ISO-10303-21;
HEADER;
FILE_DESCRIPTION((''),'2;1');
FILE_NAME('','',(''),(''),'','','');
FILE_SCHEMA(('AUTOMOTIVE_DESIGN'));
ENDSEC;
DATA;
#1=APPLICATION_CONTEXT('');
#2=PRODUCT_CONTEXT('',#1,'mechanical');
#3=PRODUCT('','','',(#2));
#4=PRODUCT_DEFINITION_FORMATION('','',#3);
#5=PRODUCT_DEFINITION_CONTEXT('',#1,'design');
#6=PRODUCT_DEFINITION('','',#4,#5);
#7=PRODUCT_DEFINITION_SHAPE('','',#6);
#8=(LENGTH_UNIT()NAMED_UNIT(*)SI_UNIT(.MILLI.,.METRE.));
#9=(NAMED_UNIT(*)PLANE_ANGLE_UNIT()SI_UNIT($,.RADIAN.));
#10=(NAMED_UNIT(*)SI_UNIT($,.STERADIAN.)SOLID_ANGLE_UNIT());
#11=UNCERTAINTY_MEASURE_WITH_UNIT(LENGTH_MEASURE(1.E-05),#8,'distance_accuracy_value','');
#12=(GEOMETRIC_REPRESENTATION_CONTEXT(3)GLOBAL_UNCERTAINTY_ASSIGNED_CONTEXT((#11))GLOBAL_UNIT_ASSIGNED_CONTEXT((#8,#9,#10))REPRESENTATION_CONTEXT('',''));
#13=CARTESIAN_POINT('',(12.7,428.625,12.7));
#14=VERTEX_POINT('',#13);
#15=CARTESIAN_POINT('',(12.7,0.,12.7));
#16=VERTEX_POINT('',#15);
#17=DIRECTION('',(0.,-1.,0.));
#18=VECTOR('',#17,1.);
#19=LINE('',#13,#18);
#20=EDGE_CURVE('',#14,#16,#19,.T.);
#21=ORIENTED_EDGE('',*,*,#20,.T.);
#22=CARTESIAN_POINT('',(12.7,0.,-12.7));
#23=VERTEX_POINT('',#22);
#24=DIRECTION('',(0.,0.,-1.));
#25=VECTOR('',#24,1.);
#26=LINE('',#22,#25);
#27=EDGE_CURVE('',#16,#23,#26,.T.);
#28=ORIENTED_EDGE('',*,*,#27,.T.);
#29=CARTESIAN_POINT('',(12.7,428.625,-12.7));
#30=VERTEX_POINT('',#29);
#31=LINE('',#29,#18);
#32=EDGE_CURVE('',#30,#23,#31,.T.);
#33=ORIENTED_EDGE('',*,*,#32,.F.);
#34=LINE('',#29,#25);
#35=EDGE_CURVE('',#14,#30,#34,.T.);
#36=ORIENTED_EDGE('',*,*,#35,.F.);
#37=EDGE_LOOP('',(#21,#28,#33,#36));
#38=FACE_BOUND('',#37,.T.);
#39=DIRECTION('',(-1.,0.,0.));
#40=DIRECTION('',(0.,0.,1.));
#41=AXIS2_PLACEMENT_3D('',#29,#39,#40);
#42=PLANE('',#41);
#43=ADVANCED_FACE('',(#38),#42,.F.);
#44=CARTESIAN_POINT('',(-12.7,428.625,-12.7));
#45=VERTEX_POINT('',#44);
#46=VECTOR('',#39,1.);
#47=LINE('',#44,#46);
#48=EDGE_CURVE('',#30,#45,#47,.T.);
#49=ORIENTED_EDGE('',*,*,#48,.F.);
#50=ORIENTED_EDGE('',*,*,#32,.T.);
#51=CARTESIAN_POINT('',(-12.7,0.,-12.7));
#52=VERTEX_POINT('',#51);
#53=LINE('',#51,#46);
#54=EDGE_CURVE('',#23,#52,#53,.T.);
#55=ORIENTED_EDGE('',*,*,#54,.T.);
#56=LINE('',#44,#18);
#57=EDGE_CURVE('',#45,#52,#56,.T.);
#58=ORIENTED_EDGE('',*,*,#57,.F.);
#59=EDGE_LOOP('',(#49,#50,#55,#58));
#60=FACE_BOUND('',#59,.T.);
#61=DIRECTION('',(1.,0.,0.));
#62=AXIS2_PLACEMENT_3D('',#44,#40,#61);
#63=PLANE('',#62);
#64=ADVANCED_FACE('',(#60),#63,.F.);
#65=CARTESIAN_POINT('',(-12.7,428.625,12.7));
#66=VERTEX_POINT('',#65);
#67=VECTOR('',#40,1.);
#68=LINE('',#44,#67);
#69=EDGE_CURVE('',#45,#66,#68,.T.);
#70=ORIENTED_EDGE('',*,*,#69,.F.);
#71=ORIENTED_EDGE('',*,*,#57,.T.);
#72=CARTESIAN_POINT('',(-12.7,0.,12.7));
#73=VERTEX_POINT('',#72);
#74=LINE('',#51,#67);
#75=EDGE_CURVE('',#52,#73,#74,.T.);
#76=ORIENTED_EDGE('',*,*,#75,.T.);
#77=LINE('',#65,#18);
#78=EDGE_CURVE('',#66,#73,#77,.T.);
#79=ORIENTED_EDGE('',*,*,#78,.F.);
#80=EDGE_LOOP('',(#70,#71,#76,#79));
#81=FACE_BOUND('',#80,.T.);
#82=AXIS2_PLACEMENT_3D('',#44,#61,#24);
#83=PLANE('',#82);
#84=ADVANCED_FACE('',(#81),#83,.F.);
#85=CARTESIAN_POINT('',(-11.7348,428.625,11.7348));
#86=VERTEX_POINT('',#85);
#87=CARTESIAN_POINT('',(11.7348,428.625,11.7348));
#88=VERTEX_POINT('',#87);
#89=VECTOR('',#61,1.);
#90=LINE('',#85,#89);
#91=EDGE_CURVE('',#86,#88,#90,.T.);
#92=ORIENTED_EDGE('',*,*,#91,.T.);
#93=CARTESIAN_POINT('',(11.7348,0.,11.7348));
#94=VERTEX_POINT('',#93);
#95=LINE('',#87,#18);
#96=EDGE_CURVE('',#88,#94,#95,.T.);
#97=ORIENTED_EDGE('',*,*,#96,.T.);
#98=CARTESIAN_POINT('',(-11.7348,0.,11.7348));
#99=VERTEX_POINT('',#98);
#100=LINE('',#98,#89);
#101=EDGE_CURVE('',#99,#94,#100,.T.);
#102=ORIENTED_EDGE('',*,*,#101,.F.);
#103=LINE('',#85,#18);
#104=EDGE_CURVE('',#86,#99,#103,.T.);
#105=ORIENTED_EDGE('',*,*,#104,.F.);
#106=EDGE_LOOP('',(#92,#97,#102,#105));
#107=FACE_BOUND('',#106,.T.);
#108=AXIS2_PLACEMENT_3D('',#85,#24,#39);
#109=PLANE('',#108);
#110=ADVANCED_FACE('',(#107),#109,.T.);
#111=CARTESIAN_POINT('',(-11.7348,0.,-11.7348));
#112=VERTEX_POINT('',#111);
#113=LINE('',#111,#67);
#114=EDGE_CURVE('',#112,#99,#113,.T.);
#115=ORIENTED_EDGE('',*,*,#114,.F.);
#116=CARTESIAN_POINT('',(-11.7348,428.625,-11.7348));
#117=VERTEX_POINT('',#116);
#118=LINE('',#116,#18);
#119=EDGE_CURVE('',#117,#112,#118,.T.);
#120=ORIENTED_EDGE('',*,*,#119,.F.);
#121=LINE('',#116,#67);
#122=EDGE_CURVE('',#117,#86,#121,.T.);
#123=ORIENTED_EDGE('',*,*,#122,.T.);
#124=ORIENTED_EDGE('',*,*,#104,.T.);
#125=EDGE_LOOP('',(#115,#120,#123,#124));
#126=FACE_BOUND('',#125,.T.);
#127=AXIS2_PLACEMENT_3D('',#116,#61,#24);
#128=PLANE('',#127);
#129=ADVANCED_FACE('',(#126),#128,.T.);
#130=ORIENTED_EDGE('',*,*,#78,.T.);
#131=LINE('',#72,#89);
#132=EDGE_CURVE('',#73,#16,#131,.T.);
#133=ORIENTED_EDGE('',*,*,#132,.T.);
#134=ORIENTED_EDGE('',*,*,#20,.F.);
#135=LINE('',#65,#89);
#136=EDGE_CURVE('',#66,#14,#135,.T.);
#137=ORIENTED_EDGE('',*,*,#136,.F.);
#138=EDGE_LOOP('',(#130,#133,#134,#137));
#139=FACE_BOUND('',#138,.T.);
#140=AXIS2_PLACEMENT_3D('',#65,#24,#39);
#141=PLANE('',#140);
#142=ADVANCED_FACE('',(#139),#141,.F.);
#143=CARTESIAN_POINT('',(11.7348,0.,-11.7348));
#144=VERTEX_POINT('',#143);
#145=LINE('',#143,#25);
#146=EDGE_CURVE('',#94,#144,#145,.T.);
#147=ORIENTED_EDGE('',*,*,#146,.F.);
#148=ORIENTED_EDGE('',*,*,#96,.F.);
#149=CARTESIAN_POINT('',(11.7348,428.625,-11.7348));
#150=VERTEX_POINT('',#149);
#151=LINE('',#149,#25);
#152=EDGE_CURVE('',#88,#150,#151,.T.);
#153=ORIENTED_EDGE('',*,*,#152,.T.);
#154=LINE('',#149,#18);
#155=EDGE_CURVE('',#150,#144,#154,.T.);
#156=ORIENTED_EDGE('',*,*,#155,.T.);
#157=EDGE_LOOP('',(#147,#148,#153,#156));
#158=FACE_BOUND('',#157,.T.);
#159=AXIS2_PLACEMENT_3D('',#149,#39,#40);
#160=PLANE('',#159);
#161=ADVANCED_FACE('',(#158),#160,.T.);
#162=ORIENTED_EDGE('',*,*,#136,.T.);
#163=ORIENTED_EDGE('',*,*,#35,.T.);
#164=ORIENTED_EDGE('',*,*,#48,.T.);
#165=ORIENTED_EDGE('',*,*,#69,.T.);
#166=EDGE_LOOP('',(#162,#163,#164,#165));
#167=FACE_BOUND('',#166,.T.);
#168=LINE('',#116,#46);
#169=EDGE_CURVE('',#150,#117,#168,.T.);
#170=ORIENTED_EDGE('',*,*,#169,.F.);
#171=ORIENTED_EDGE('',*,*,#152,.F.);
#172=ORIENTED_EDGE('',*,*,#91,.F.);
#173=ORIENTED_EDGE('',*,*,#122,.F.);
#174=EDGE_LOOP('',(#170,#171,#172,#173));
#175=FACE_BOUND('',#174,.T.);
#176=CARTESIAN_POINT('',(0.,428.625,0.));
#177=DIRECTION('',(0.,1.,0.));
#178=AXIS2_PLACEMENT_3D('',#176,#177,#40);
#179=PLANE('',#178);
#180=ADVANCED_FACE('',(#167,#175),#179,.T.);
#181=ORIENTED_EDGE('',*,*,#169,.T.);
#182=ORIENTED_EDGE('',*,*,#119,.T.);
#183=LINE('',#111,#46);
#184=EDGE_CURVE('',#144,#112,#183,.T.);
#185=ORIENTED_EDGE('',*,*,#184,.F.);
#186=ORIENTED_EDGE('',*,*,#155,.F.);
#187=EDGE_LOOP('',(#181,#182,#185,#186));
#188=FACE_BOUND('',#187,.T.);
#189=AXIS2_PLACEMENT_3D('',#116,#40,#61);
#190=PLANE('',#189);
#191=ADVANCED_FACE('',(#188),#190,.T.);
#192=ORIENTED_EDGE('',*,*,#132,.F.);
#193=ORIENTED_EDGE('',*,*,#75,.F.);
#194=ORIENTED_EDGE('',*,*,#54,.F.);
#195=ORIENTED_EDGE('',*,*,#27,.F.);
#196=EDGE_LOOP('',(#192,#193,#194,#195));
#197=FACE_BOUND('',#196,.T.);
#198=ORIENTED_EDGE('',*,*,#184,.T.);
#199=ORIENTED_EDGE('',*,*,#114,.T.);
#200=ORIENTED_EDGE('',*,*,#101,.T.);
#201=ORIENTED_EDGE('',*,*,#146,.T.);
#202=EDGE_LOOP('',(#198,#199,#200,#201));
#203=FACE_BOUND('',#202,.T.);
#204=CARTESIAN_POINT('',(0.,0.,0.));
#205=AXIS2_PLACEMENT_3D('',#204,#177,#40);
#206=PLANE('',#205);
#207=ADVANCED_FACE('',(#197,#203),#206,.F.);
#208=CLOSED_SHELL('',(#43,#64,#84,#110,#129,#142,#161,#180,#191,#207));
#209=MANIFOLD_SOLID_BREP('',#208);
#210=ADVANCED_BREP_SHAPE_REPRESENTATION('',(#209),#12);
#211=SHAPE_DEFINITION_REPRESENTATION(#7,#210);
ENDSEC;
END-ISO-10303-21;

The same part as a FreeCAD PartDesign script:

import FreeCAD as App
import Part
import Sketcher
Q = App.Units.Quantity


def add_polygon(sketch, points):
    """Adds a closed chain of lines whose ends are joined by coincident constraints."""
    first, n = sketch.GeometryCount, len(points)
    for a, b in zip(points, points[1:] + points[:1]):
        sketch.addGeometry(Part.LineSegment(App.Vector(*a, 0), App.Vector(*b, 0)), False)
    for i in range(n):
        sketch.addConstraint(Sketcher.Constraint("Coincident", first + i, 2, first + (i + 1) % n, 1))

doc = App.newDocument("Part")
body = doc.addObject("PartDesign::Body", "Body")

sketch1 = body.newObject("Sketcher::SketchObject", "Sketch")
sketch1.AttachmentSupport = (doc.getObject("XZ_Plane"), [""])
sketch1.MapMode = "FlatFace"
add_polygon(sketch1, [(-13, -13), (-13, 13), (13, 13), (13, -13)])
add_polygon(sketch1, [(12, 12), (-12, 12), (-12, -12), (12, -12)])
sketch1.addConstraint([
    Sketcher.Constraint("Vertical", 0),
    Sketcher.Constraint("Horizontal", 1),
    Sketcher.Constraint("Vertical", 2),
    Sketcher.Constraint("Horizontal", 3),
    Sketcher.Constraint("Horizontal", 4),
    Sketcher.Constraint("Vertical", 5),
    Sketcher.Constraint("Horizontal", 6),
    Sketcher.Constraint("Vertical", 7),
    Sketcher.Constraint("Symmetric", 0, 2, 2, 2, -1, 1),
    Sketcher.Constraint("Symmetric", 4, 2, 6, 2, -1, 1),
    Sketcher.Constraint("Equal", 3, 0),
    Sketcher.Constraint("Equal", 6, 5),
    Sketcher.Constraint("DistanceX", 1, 1, 1, 2, Q("1 in")),
    Sketcher.Constraint("DistanceX", 4, 2, 4, 1, Q("0.924 in")),
])
pad1 = body.newObject("PartDesign::Pad", "Pad")
pad1.Profile = sketch1
pad1.Length = Q("16.875 in")
pad1.Reversed = True

doc.recompute()
